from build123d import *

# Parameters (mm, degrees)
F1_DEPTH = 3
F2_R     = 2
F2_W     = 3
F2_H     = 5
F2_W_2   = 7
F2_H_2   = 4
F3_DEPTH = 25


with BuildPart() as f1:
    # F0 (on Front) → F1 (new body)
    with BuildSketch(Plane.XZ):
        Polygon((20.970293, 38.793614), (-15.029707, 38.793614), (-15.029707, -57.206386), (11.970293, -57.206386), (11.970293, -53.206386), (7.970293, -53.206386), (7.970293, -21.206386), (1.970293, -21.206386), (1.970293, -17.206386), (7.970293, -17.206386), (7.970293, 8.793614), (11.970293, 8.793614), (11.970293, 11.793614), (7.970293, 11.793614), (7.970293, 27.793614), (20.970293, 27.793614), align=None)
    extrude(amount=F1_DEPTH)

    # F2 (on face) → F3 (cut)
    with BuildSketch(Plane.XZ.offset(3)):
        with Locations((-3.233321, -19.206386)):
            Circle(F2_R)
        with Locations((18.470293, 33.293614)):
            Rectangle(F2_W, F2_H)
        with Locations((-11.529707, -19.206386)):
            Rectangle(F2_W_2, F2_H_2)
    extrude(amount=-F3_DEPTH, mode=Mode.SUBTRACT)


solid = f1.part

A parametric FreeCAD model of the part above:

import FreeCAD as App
import Part
import Sketcher

V = App.Vector


def add_polygon(sketch, points):
    """Adds a closed chain of lines whose ends are joined by coincident constraints."""
    first, n = sketch.GeometryCount, len(points)
    for a, b in zip(points, points[1:] + points[:1]):
        sketch.addGeometry(Part.LineSegment(App.Vector(*a, 0), App.Vector(*b, 0)), False)
    for i in range(n):
        sketch.addConstraint(Sketcher.Constraint("Coincident", first + i, 2, first + (i + 1) % n, 1))

doc = App.newDocument("Part")
params = doc.addObject("Spreadsheet::Sheet", "Params")
for row, (alias, value) in enumerate([
    ("sketch1_width", "36 mm"),
    ("sketch1_width2", "27 mm"),
    ("sketch1_width3", "4 mm"),
    ("sketch1_width4", "6 mm"),
    ("sketch1_height", "96 mm"),
    ("pad1_length", "3 mm"),
    ("sketch2_diameter", "4 mm"),
    ("sketch2_width", "3 mm"),
    ("sketch2_width2", "7 mm"),
    ("sketch2_height", "5 mm"),
    ("sketch2_height2", "4 mm"),
    ("pocket1_length", "25 mm"),
], start=1):
    params.set(f"A{row}", alias)
    params.set(f"B{row}", "=" + value)
    params.setAlias(f"B{row}", alias)

body = doc.addObject("PartDesign::Body", "Body")

# Sketch on XZ plane
sketch1 = body.newObject("Sketcher::SketchObject", "Sketch")
sketch1.AttachmentSupport = (doc.getObject("XZ_Plane"), [""])
sketch1.MapMode = "FlatFace"
add_polygon(sketch1, [(21, 38.8), (-15, 38.8), (-15, -57.2), (12, -57.2), (12, -53.2), (8, -53.2), (8, -21.2), (2, -21.2), (2, -17.2), (8, -17.2), (8, 8.8), (12, 8.8), (12, 11.8), (8, 11.8), (8, 27.8), (21, 27.8)])  # lines 0-15
sketch1.addConstraint(Sketcher.Constraint("Horizontal", 0))
sketch1.addConstraint(Sketcher.Constraint("Vertical", 1))
sketch1.addConstraint(Sketcher.Constraint("Horizontal", 2))
sketch1.addConstraint(Sketcher.Constraint("Vertical", 3))
sketch1.addConstraint(Sketcher.Constraint("Horizontal", 4))
sketch1.addConstraint(Sketcher.Constraint("Vertical", 5))
sketch1.addConstraint(Sketcher.Constraint("Horizontal", 6))
sketch1.addConstraint(Sketcher.Constraint("Vertical", 7))
sketch1.addConstraint(Sketcher.Constraint("Horizontal", 8))
sketch1.addConstraint(Sketcher.Constraint("Vertical", 9))
sketch1.addConstraint(Sketcher.Constraint("Horizontal", 10))
sketch1.addConstraint(Sketcher.Constraint("Vertical", 11))
sketch1.addConstraint(Sketcher.Constraint("Horizontal", 12))
sketch1.addConstraint(Sketcher.Constraint("Vertical", 13))
sketch1.addConstraint(Sketcher.Constraint("Horizontal", 14))
sketch1.addConstraint(Sketcher.Constraint("Vertical", 15))
sketch1.addConstraint(Sketcher.Constraint("Vertical", 5, 2, 8, 2))
sketch1.addConstraint(Sketcher.Constraint("Vertical", 3, 2, 10, 2))
sketch1.addConstraint(Sketcher.Constraint("Vertical", 9, 2, 12, 2))
sketch1.addConstraint(Sketcher.Constraint("Equal", 12, 3))
sketch1.addConstraint(Sketcher.Constraint("Equal", 3, 7))
sketch1.addConstraint(Sketcher.Constraint("DistanceX", 0, 2, 0, 1, 36.0))
sketch1.addConstraint(Sketcher.Constraint("DistanceX", 2, 1, 2, 2, 27.0))
sketch1.addConstraint(Sketcher.Constraint("DistanceX", 4, 2, 4, 1, 4.0))
sketch1.addConstraint(Sketcher.Constraint("DistanceX", 6, 2, 6, 1, 6.0))
sketch1.addConstraint(Sketcher.Constraint("DistanceY", 1, 2, 1, 1, 96.0))
sketch1.addConstraint(Sketcher.Constraint("DistanceY", 5, 1, 5, 2, 32.0))
sketch1.addConstraint(Sketcher.Constraint("DistanceY", 9, 1, 9, 2, 26.0))
sketch1.addConstraint(Sketcher.Constraint("DistanceY", 11, 1, 11, 2, 3.0))
sketch1.addConstraint(Sketcher.Constraint("DistanceY", 13, 1, 13, 2, 16.0))
sketch1.addConstraint(Sketcher.Constraint("DistanceX", 0, 2, -1, 1, 15.029707))
sketch1.addConstraint(Sketcher.Constraint("DistanceY", -1, 1, 0, 2, 38.793614))
sketch1.setExpression("Constraints[37]", "Params.sketch1_width")
sketch1.setExpression("Constraints[38]", "Params.sketch1_width2")
sketch1.setExpression("Constraints[39]", "Params.sketch1_width3")
sketch1.setExpression("Constraints[40]", "Params.sketch1_width4")
sketch1.setExpression("Constraints[41]", "Params.sketch1_height")
pad1 = body.newObject("PartDesign::Pad", "Pad")
pad1.Profile = sketch1
pad1.setExpression("Length", "Params.pad1_length")

# Sketch on XZ plane
sketch2 = body.newObject("Sketcher::SketchObject", "Sketch001")
sketch2.AttachmentSupport = (doc.getObject("XZ_Plane"), [""])
sketch2.MapMode = "FlatFace"
sketch2.AttachmentOffset = App.Placement(V(0, 0, 3), App.Rotation())
sketch2.addGeometry(Part.Circle(V(-3.2, -19.2, 0), V(0, 0, 1), 2), False)  # 0
add_polygon(sketch2, [(17, 35.8), (17, 30.8), (20, 30.8), (20, 35.8)])  # lines 1-4
add_polygon(sketch2, [(-15, -17.2), (-15, -21.2), (-8, -21.2), (-8, -17.2)])  # lines 5-8
sketch2.addConstraint(Sketcher.Constraint("Vertical", 1))
sketch2.addConstraint(Sketcher.Constraint("Horizontal", 2))
sketch2.addConstraint(Sketcher.Constraint("Vertical", 3))
sketch2.addConstraint(Sketcher.Constraint("Horizontal", 4))
sketch2.addConstraint(Sketcher.Constraint("Vertical", 5))
sketch2.addConstraint(Sketcher.Constraint("Horizontal", 6))
sketch2.addConstraint(Sketcher.Constraint("Vertical", 7))
sketch2.addConstraint(Sketcher.Constraint("Horizontal", 8))
sketch2.addConstraint(Sketcher.Constraint("Diameter", 0, 4.0))
sketch2.addConstraint(Sketcher.Constraint("DistanceX", 2, 1, 2, 2, 3.0))
sketch2.addConstraint(Sketcher.Constraint("DistanceX", 6, 1, 6, 2, 7.0))
sketch2.addConstraint(Sketcher.Constraint("DistanceY", 1, 2, 1, 1, 5.0))
sketch2.addConstraint(Sketcher.Constraint("DistanceY", 5, 2, 5, 1, 4.0))
sketch2.addConstraint(Sketcher.Constraint("DistanceY", 0, 3, 1, 2, 50.0))
sketch2.addConstraint(Sketcher.Constraint("DistanceY", 5, 2, 0, 3, 2.0))
sketch2.addConstraint(Sketcher.Constraint("DistanceX", 5, 2, 1, 2, 32.0))
sketch2.addConstraint(Sketcher.Constraint("DistanceX", 0, 3, -1, 1, 3.233321))
sketch2.addConstraint(Sketcher.Constraint("DistanceY", 0, 3, -1, 1, 19.206386))
sketch2.addConstraint(Sketcher.Constraint("DistanceX", -1, 1, 1, 2, 16.970293))
sketch2.setExpression("Constraints[16]", "Params.sketch2_diameter")
sketch2.setExpression("Constraints[17]", "Params.sketch2_width")
sketch2.setExpression("Constraints[18]", "Params.sketch2_width2")
sketch2.setExpression("Constraints[19]", "Params.sketch2_height")
sketch2.setExpression("Constraints[20]", "Params.sketch2_height2")
pocket1 = body.newObject("PartDesign::Pocket", "Pocket")
pocket1.Profile = sketch2
pocket1.setExpression("Length", "Params.pocket1_length")

doc.recompute()
